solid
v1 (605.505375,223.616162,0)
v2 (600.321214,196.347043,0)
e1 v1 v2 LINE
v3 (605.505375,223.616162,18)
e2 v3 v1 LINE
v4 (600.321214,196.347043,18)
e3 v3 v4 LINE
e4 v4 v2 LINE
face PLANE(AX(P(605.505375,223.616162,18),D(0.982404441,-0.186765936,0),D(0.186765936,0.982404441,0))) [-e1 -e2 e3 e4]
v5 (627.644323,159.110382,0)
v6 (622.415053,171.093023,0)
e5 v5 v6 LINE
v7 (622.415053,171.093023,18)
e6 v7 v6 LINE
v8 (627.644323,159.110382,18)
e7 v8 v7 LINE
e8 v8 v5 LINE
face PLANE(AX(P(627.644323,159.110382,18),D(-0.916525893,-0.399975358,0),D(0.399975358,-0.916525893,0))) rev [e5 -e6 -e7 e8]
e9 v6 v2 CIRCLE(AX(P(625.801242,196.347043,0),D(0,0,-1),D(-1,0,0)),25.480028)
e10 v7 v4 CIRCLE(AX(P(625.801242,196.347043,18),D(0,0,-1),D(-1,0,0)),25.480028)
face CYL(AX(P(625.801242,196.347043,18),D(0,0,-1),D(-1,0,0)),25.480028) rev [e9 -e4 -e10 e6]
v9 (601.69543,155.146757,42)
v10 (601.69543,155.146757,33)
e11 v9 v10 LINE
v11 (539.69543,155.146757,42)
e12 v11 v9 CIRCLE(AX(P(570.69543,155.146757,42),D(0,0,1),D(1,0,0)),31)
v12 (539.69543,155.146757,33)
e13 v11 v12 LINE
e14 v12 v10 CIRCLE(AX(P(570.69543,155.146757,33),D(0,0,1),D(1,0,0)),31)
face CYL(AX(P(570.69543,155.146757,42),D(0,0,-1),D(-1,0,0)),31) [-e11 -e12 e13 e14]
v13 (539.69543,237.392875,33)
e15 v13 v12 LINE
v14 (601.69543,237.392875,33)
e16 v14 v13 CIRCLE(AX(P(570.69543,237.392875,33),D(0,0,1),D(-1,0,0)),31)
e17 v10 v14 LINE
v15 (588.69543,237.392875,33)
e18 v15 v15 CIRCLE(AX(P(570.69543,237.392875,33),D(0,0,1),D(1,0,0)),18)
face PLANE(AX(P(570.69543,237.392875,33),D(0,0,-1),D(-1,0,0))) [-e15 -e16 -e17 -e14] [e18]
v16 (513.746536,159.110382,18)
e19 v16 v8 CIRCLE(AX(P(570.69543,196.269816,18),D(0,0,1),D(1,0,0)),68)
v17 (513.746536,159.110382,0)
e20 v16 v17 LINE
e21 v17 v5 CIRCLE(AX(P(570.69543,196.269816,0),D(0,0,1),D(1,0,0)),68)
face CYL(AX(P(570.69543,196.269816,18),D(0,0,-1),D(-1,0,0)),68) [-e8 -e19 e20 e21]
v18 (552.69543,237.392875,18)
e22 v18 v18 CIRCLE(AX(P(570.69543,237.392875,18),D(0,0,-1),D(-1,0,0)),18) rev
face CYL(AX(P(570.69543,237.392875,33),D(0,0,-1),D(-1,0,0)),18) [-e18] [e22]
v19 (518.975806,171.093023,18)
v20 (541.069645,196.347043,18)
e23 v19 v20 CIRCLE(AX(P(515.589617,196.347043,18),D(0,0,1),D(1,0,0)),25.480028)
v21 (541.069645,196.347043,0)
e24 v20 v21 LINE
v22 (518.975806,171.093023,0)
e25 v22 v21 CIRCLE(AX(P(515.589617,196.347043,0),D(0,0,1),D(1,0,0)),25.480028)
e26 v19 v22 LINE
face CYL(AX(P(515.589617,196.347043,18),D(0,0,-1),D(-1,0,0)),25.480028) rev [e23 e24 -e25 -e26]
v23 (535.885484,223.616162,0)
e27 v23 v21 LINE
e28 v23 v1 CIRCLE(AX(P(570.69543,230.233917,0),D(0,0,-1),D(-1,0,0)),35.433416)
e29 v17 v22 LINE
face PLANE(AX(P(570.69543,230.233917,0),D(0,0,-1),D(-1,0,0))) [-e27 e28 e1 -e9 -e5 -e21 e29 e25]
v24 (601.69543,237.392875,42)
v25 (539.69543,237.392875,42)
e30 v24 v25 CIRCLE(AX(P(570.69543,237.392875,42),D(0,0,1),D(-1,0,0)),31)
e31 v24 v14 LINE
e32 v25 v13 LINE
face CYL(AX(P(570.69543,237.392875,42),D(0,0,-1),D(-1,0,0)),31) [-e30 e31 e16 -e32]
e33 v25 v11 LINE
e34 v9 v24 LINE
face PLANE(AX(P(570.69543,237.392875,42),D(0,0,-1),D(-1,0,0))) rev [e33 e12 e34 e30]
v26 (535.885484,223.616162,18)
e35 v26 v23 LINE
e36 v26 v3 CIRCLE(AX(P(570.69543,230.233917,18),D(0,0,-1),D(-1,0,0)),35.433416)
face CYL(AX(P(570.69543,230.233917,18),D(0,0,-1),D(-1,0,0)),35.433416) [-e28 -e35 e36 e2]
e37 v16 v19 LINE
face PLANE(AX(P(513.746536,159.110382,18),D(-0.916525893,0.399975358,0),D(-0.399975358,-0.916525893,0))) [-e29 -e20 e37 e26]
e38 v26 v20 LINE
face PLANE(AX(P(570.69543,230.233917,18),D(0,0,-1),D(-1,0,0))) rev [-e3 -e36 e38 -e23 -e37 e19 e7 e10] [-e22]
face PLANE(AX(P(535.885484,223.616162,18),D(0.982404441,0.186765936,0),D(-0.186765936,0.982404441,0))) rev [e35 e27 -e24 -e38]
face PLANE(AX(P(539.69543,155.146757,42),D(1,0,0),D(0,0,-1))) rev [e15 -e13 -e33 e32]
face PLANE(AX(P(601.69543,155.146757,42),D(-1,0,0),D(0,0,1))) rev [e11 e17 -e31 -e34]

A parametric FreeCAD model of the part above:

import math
import FreeCAD as App
import Part
import Sketcher

V = App.Vector
Q = App.Units.Quantity

doc = App.newDocument("Part")
body = doc.addObject("PartDesign::Body", "Body")

# Sketch on XY plane
sketch1 = doc.addObject("Sketcher::SketchObject", "Sketch")
body.addObject(sketch1)
sketch1.AttachmentSupport = (doc.XY_Plane, [""])
sketch1.MapMode = "FlatFace"
sketch1.addGeometry([
    Part.LineSegment(V(518.975806, 171.093023, 0), V(513.746536, 159.110382, 0)),  # 0
    Part.ArcOfCircle(Part.Circle(V(570.69543, 196.269816, 0), V(0, 0, 1), 68), math.radians(-146.875353), math.radians(-33.124647)),  # 1
    Part.LineSegment(V(627.644323, 159.110382, 0), V(622.415053, 171.093023, 0)),  # 2
    Part.ArcOfCircle(Part.Circle(V(625.801242, 196.347043, 0), V(0, 0, 1), 25.480028), math.radians(180), math.radians(262.363037)),  # 3
    Part.LineSegment(V(600.321214, 196.347043, 0), V(605.505375, 223.616162, 0)),  # 4
    Part.ArcOfCircle(Part.Circle(V(570.69543, 230.233917, 0), V(0, 0, 1), 35.433416), math.radians(-10.764108), math.radians(190.764108)),  # 5
    Part.LineSegment(V(535.885484, 223.616162, 0), V(541.069645, 196.347043, 0)),  # 6
    Part.ArcOfCircle(Part.Circle(V(515.589617, 196.347043, 0), V(0, 0, 1), 25.480028), math.radians(-82.363037), math.radians(0)),  # 7
], False)
sketch1.addConstraint([
    Sketcher.Constraint("Coincident", 0, 2, 1, 1),
    Sketcher.Constraint("Coincident", 1, 2, 2, 1),
    Sketcher.Constraint("Coincident", 2, 2, 3, 2),
    Sketcher.Constraint("Coincident", 3, 1, 4, 1),
    Sketcher.Constraint("Tangent", 4, 2, 5, 1),
    Sketcher.Constraint("Tangent", 5, 2, 6, 1),
    Sketcher.Constraint("Coincident", 6, 2, 7, 2),
    Sketcher.Constraint("Coincident", 7, 1, 0, 1),
    Sketcher.Constraint("Equal", 3, 7),
    Sketcher.Constraint("Horizontal", 3, 3, 7, 3),
    Sketcher.Constraint("Horizontal", 0, 2, 1, 2),
    Sketcher.Constraint("Horizontal", 7, 3, 3, 1),
    Sketcher.Constraint("Horizontal", 4, 2, 5, 2),
    Sketcher.Constraint("Horizontal", 3, 1, 6, 2),
    Sketcher.Constraint("Horizontal", 2, 2, 7, 1),
    Sketcher.Constraint("Vertical", 1, 3, 5, 3),
    Sketcher.Constraint("Radius", 1, Q("68 mm")),
    Sketcher.Constraint("Radius", 3, Q("25.480028 mm")),
    Sketcher.Constraint("Radius", 5, Q("35.433416 mm")),
    Sketcher.Constraint("DistanceY", 1, 3, 5, 3, Q("33.964101 mm")),
    Sketcher.Constraint("Distance", 0, Q("13.07398 mm")),
    Sketcher.Constraint("DistanceX", -1, 1, 1, 3, Q("570.69543 mm")),
    Sketcher.Constraint("DistanceY", -1, 1, 0, 2, Q("159.110382 mm")),
    Sketcher.Constraint("DistanceX", 0, 2, 7, 3, Q("1.843081 mm")),
    Sketcher.Constraint("DistanceY", 0, 2, 7, 3, Q("37.236662 mm")),
    Sketcher.Constraint("DistanceX", 3, 1, 4, 2, Q("5.184161 mm")),
])
pad1 = doc.addObject("PartDesign::Pad", "Pad")
body.addObject(pad1)
pad1.Profile = sketch1
pad1.Length = 18
body2 = doc.addObject("PartDesign::Body", "Body001")

# Sketch on XY plane
sketch2 = doc.addObject("Sketcher::SketchObject", "Sketch001")
body2.addObject(sketch2)
sketch2.AttachmentSupport = (doc.getObject("XY_Plane001"), [""])
sketch2.MapMode = "FlatFace"
sketch2.AttachmentOffset = App.Placement(V(0, 0, 18), App.Rotation())
sketch2.addGeometry(Part.Circle(V(570.69543, 237.392875, 0), V(0, 0, 1), 18), False)
sketch2.addConstraint([
    Sketcher.Constraint("Diameter", 0, Q("36 mm")),
    Sketcher.Constraint("DistanceX", -1, 1, 0, 3, Q("570.69543 mm")),
    Sketcher.Constraint("DistanceY", -1, 1, 0, 3, Q("237.392875 mm")),
])
pad2 = doc.addObject("PartDesign::Pad", "Pad001")
body2.addObject(pad2)
pad2.Profile = sketch2
pad2.Length = 15
body3 = doc.addObject("PartDesign::Body", "Body002")
body3.AllowCompound = True

# Sketch on XY plane
sketch3 = doc.addObject("Sketcher::SketchObject", "Sketch002")
body3.addObject(sketch3)
sketch3.AttachmentSupport = (doc.getObject("XY_Plane002"), [""])
sketch3.MapMode = "FlatFace"
sketch3.AttachmentOffset = App.Placement(V(0, 0, 33), App.Rotation())
sketch3.addGeometry([
    Part.LineSegment(V(539.69543, 237.392875, 0), V(539.69543, 155.146757, 0)),
    Part.ArcOfCircle(Part.Circle(V(570.69543, 155.146757, 0), V(0, 0, 1), 31), math.radians(180), math.radians(360)),
    Part.LineSegment(V(601.69543, 155.146757, 0), V(601.69543, 237.392875, 0)),
    Part.ArcOfCircle(Part.Circle(V(570.69543, 237.392875, 0), V(0, 0, 1), 31), math.radians(0), math.radians(180)),
], False)
sketch3.addConstraint([
    Sketcher.Constraint("Tangent", 0, 2, 1, 1),
    Sketcher.Constraint("Tangent", 1, 2, 2, 1),
    Sketcher.Constraint("Tangent", 2, 2, 3, 1),
    Sketcher.Constraint("Tangent", 3, 2, 0, 1),
    Sketcher.Constraint("Vertical", 0),
    Sketcher.Constraint("Vertical", 2),
    Sketcher.Constraint("Radius", 1, Q("31 mm")),
    Sketcher.Constraint("DistanceY", 0, 2, 0, 1, Q("82.246119 mm")),
    Sketcher.Constraint("DistanceX", -1, 1, 1, 3, Q("570.69543 mm")),
    Sketcher.Constraint("DistanceY", -1, 1, 1, 3, Q("155.146757 mm")),
])
pad3 = doc.addObject("PartDesign::Pad", "Pad002")
body3.addObject(pad3)
pad3.Profile = sketch3
pad3.Length = 9
doc.recompute()

boolean = doc.addObject("PartDesign::Boolean", "Boolean")
body3.addObject(boolean)
boolean.Type = "Fuse"
boolean.addObjects([body])
doc.recompute()

boolean2 = doc.addObject("PartDesign::Boolean", "Boolean001")
body3.addObject(boolean2)
boolean2.Type = "Fuse"
boolean2.addObjects([body2])

doc.recompute()
